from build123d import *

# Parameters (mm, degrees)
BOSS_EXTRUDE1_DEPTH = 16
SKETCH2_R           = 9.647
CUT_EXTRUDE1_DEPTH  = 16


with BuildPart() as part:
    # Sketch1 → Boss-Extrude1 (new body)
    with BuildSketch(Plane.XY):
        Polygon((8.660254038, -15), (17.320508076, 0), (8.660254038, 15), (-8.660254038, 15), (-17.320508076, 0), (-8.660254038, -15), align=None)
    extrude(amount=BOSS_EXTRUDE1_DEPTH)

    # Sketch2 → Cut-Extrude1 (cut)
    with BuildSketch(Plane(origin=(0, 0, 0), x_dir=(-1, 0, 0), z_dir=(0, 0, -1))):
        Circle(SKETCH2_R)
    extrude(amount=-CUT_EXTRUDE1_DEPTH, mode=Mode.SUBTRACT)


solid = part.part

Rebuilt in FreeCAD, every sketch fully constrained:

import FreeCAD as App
import Part
import Sketcher

V = App.Vector
Q = App.Units.Quantity


def add_polygon(sketch, points):
    """Adds a closed chain of lines whose ends are joined by coincident constraints."""
    first, n = sketch.GeometryCount, len(points)
    for a, b in zip(points, points[1:] + points[:1]):
        sketch.addGeometry(Part.LineSegment(App.Vector(*a, 0), App.Vector(*b, 0)), False)
    for i in range(n):
        sketch.addConstraint(Sketcher.Constraint("Coincident", first + i, 2, first + (i + 1) % n, 1))

doc = App.newDocument("Part")
body = doc.addObject("PartDesign::Body", "Body")

# Sketch on XY plane
sketch1 = body.newObject("Sketcher::SketchObject", "Sketch")
sketch1.AttachmentSupport = (doc.getObject("XY_Plane"), [""])
sketch1.MapMode = "FlatFace"
add_polygon(sketch1, [(9, -15), (17, 0), (9, 15), (-9, 15), (-17, 0), (-9, -15)])  # lines 0-5
sketch1.addConstraint([
    Sketcher.Constraint("Horizontal", 2),
    Sketcher.Constraint("Horizontal", 5),
    Sketcher.Constraint("Symmetric", 0, 2, 3, 2, -1, 1),
    Sketcher.Constraint("Symmetric", 1, 2, 4, 2, -1, 1),
    Sketcher.Constraint("PointOnObject", 0, 2, -1),
    Sketcher.Constraint("Parallel", 0, 3),
    Sketcher.Constraint("Vertical", 2, 2, 4, 2),
    Sketcher.Constraint("Angle", 0, Q("60 deg")),
    Sketcher.Constraint("DistanceY", -1, 1, 1, 2, Q("15 mm")),
    Sketcher.Constraint("DistanceX", 2, 2, 2, 1, Q("17.320508 mm")),
])
pad1 = body.newObject("PartDesign::Pad", "Pad")
pad1.Profile = sketch1
pad1.Length = 16

# Sketch on XY plane
sketch2 = body.newObject("Sketcher::SketchObject", "Sketch001")
sketch2.AttachmentSupport = (doc.getObject("XY_Plane"), [""])
sketch2.MapMode = "FlatFace"
sketch2.addGeometry(Part.Circle(V(0, 0, 0), V(0, 0, 1), 10), False)
sketch2.addConstraint([
    Sketcher.Constraint("Coincident", 0, 3, -1, 1),
    Sketcher.Constraint("Diameter", 0, Q("19.294 mm")),
])
pocket1 = body.newObject("PartDesign::Pocket", "Pocket")
pocket1.Profile = sketch2
pocket1.Length = 16
pocket1.Reversed = True

doc.recompute()
